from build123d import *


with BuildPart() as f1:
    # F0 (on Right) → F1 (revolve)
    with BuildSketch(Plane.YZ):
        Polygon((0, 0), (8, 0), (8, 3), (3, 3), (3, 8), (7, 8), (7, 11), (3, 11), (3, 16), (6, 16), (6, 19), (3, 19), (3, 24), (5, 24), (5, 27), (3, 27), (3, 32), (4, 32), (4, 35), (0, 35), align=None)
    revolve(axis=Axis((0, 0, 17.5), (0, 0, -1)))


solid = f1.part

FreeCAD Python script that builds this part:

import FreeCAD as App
import Part
import Sketcher


def add_polygon(sketch, points):
    """Adds a closed chain of lines whose ends are joined by coincident constraints."""
    first, n = sketch.GeometryCount, len(points)
    for a, b in zip(points, points[1:] + points[:1]):
        sketch.addGeometry(Part.LineSegment(App.Vector(*a, 0), App.Vector(*b, 0)), False)
    for i in range(n):
        sketch.addConstraint(Sketcher.Constraint("Coincident", first + i, 2, first + (i + 1) % n, 1))

doc = App.newDocument("Part")
params = doc.addObject("Spreadsheet::Sheet", "Params")
for row, (alias, value) in enumerate([
    ("sketch1_width", "8 mm"),
    ("sketch1_width2", "5 mm"),
    ("sketch1_width3", "4 mm"),
    ("sketch1_width4", "3 mm"),
    ("sketch1_width5", "2 mm"),
    ("revolution_angle", "360 deg"),
], start=1):
    params.set(f"A{row}", alias)
    params.set(f"B{row}", "=" + value)
    params.setAlias(f"B{row}", alias)

body = doc.addObject("PartDesign::Body", "Body")

# Sketch on YZ plane
sketch1 = body.newObject("Sketcher::SketchObject", "Sketch")
sketch1.AttachmentSupport = (doc.getObject("YZ_Plane"), [""])
sketch1.MapMode = "FlatFace"
add_polygon(sketch1, [(0, 0), (8, 0), (8, 3), (3, 3), (3, 8), (7, 8), (7, 11), (3, 11), (3, 16), (6, 16), (6, 19), (3, 19), (3, 24), (5, 24), (5, 27), (3, 27), (3, 32), (4, 32), (4, 35), (0, 35)])  # lines 0-19
sketch1.addConstraint([
    Sketcher.Constraint("Horizontal", 0),
    Sketcher.Constraint("Vertical", 1),
    Sketcher.Constraint("Horizontal", 2),
    Sketcher.Constraint("Vertical", 3),
    Sketcher.Constraint("Horizontal", 4),
    Sketcher.Constraint("Vertical", 5),
    Sketcher.Constraint("Horizontal", 6),
    Sketcher.Constraint("Vertical", 7),
    Sketcher.Constraint("Horizontal", 8),
    Sketcher.Constraint("Vertical", 9),
    Sketcher.Constraint("Horizontal", 10),
    Sketcher.Constraint("Vertical", 11),
    Sketcher.Constraint("Horizontal", 12),
    Sketcher.Constraint("Vertical", 13),
    Sketcher.Constraint("Horizontal", 14),
    Sketcher.Constraint("Vertical", 15),
    Sketcher.Constraint("Horizontal", 16),
    Sketcher.Constraint("Vertical", 17),
    Sketcher.Constraint("Horizontal", 18),
    Sketcher.Constraint("Vertical", 19),
    Sketcher.Constraint("Coincident", 19, 2, -1, 1),
    Sketcher.Constraint("Vertical", 3, 2, 6, 2),
    Sketcher.Constraint("Vertical", 7, 2, 10, 2),
    Sketcher.Constraint("Vertical", 11, 2, 14, 2),
    Sketcher.Constraint("Equal", 6, 18),
    Sketcher.Constraint("Equal", 10, 1),
    Sketcher.Constraint("Equal", 2, 3),
    Sketcher.Constraint("Equal", 1, 5),
    Sketcher.Constraint("Equal", 3, 7),
    Sketcher.Constraint("Equal", 5, 9),
    Sketcher.Constraint("Equal", 7, 11),
    Sketcher.Constraint("Equal", 9, 13),
    Sketcher.Constraint("Equal", 11, 15),
    Sketcher.Constraint("Equal", 13, 17),
    Sketcher.Constraint("DistanceX", 0, 1, 0, 2, 8.0),
    Sketcher.Constraint("DistanceX", 2, 2, 2, 1, 5.0),
    Sketcher.Constraint("DistanceX", 4, 1, 4, 2, 4.0),
    Sketcher.Constraint("DistanceX", 8, 1, 8, 2, 3.0),
    Sketcher.Constraint("DistanceX", 12, 1, 12, 2, 2.0),
])
sketch1.setExpression("Constraints[54]", "Params.sketch1_width")
sketch1.setExpression("Constraints[55]", "Params.sketch1_width2")
sketch1.setExpression("Constraints[56]", "Params.sketch1_width3")
sketch1.setExpression("Constraints[57]", "Params.sketch1_width4")
sketch1.setExpression("Constraints[58]", "Params.sketch1_width5")
revolution = body.newObject("PartDesign::Revolution", "Revolution")
revolution.Profile = sketch1
revolution.ReferenceAxis = (sketch1, ["V_Axis"])
revolution.setExpression("Angle", "Params.revolution_angle")

doc.recompute()
